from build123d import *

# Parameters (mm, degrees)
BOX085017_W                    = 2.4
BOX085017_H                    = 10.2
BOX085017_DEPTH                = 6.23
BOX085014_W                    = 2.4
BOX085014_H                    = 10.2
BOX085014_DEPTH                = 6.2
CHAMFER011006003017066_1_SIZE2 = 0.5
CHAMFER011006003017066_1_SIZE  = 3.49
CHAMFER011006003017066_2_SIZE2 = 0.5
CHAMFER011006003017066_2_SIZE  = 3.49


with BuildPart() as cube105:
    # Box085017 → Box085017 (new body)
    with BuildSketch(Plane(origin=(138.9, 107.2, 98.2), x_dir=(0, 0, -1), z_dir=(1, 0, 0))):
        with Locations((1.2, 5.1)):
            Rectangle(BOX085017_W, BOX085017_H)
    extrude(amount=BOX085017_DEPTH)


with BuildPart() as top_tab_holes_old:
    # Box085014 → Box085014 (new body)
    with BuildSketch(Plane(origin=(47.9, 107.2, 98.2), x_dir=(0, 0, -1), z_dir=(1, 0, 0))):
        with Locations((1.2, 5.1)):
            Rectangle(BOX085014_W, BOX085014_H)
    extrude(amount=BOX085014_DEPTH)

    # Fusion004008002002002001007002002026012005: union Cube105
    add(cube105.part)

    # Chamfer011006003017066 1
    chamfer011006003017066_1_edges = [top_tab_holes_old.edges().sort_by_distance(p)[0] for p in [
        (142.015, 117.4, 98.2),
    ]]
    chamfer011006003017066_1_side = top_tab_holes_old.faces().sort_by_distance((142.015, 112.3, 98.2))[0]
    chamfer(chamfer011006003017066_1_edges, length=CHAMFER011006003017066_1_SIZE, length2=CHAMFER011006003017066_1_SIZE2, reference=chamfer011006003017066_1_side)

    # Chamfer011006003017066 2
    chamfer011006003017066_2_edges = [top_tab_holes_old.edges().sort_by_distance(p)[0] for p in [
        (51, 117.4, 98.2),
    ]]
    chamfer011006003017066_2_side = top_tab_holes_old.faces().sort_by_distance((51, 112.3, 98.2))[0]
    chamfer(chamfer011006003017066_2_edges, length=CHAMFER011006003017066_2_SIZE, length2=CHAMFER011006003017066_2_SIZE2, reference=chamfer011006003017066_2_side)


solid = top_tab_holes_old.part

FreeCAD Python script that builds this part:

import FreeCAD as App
import Part
import Sketcher
from FreeCAD import Vector


def edges_at(feature, points):
    """Names of the edges that pass closest to the given points."""
    edges = feature.Shape.Edges
    near = lambda p: min(range(len(edges)), key=lambda i: edges[i].distToShape(Part.Vertex(*p))[0])
    return sorted({f"Edge{near(p) + 1}" for p in points})

doc = App.newDocument("Part")
body = doc.addObject("PartDesign::Body", "Body")

# Sketch on YZ plane
sketch1 = body.newObject("Sketcher::SketchObject", "Sketch")
sketch1.AttachmentSupport = (doc.getObject("YZ_Plane"), [""])
sketch1.MapMode = "FlatFace"
sketch1.AttachmentOffset = App.Placement(Vector(0, 0, 138.9), App.Rotation())
sketch1.addGeometry([
    Part.LineSegment(Vector(117.4, 98.2, 0), Vector(107.2, 98.2, 0)),
    Part.LineSegment(Vector(107.2, 98.2, 0), Vector(107.2, 95.8, 0)),
    Part.LineSegment(Vector(107.2, 95.8, 0), Vector(117.4, 95.8, 0)),
    Part.LineSegment(Vector(117.4, 95.8, 0), Vector(117.4, 98.2, 0)),
], False)
sketch1.addConstraint([
    Sketcher.Constraint("Coincident", 0, 2, 1, 1),
    Sketcher.Constraint("Coincident", 1, 2, 2, 1),
    Sketcher.Constraint("Coincident", 2, 2, 3, 1),
    Sketcher.Constraint("Coincident", 3, 2, 0, 1),
    Sketcher.Constraint("Horizontal", 0),
    Sketcher.Constraint("Vertical", 1),
    Sketcher.Constraint("Horizontal", 2),
    Sketcher.Constraint("Vertical", 3),
    Sketcher.Constraint("DistanceX", 0, 2, 0, 1, 10.2),
    Sketcher.Constraint("DistanceY", 1, 2, 1, 1, 2.4),
    Sketcher.Constraint("DistanceX", -1, 1, 0, 2, 107.2),
    Sketcher.Constraint("DistanceY", -1, 1, 0, 2, 98.2),
])
pad1 = body.newObject("PartDesign::Pad", "Pad")
pad1.Profile = sketch1
pad1.Length = 6.23
body2 = doc.addObject("PartDesign::Body", "Body001")
body2.AllowCompound = True

# Sketch on YZ plane
sketch2 = body2.newObject("Sketcher::SketchObject", "Sketch001")
sketch2.AttachmentSupport = (doc.getObject("YZ_Plane001"), [""])
sketch2.MapMode = "FlatFace"
sketch2.AttachmentOffset = App.Placement(Vector(0, 0, 47.9), App.Rotation())
sketch2.addGeometry([
    Part.LineSegment(Vector(117.4, 98.2, 0), Vector(107.2, 98.2, 0)),
    Part.LineSegment(Vector(107.2, 98.2, 0), Vector(107.2, 95.8, 0)),
    Part.LineSegment(Vector(107.2, 95.8, 0), Vector(117.4, 95.8, 0)),
    Part.LineSegment(Vector(117.4, 95.8, 0), Vector(117.4, 98.2, 0)),
], False)
sketch2.addConstraint([
    Sketcher.Constraint("Coincident", 0, 2, 1, 1),
    Sketcher.Constraint("Coincident", 1, 2, 2, 1),
    Sketcher.Constraint("Coincident", 2, 2, 3, 1),
    Sketcher.Constraint("Coincident", 3, 2, 0, 1),
    Sketcher.Constraint("Horizontal", 0),
    Sketcher.Constraint("Vertical", 1),
    Sketcher.Constraint("Horizontal", 2),
    Sketcher.Constraint("Vertical", 3),
    Sketcher.Constraint("DistanceX", 0, 2, 0, 1, 10.2),
    Sketcher.Constraint("DistanceY", 1, 2, 1, 1, 2.4),
    Sketcher.Constraint("DistanceX", -1, 1, 0, 2, 107.2),
    Sketcher.Constraint("DistanceY", -1, 1, 0, 2, 98.2),
])
pad2 = body2.newObject("PartDesign::Pad", "Pad001")
pad2.Profile = sketch2
pad2.Length = 6.2
doc.recompute()

boolean = body2.newObject("PartDesign::Boolean", "Boolean")
boolean.Type = "Fuse"
boolean.addObjects([body])
doc.recompute()

chamfer = body2.newObject("PartDesign::Chamfer", "Chamfer")
chamfer.Base = (boolean, edges_at(boolean, [(142.015, 117.4, 98.2)]))
chamfer.ChamferType = "Two distances"
chamfer.Size = 3.49
chamfer.Size2 = 0.5
doc.recompute()

chamfer2 = body2.newObject("PartDesign::Chamfer", "Chamfer001")
chamfer2.Base = (chamfer, edges_at(chamfer, [(51, 117.4, 98.2)]))
chamfer2.ChamferType = "Two distances"
chamfer2.Size = 3.49
chamfer2.Size2 = 0.5

doc.recompute()
